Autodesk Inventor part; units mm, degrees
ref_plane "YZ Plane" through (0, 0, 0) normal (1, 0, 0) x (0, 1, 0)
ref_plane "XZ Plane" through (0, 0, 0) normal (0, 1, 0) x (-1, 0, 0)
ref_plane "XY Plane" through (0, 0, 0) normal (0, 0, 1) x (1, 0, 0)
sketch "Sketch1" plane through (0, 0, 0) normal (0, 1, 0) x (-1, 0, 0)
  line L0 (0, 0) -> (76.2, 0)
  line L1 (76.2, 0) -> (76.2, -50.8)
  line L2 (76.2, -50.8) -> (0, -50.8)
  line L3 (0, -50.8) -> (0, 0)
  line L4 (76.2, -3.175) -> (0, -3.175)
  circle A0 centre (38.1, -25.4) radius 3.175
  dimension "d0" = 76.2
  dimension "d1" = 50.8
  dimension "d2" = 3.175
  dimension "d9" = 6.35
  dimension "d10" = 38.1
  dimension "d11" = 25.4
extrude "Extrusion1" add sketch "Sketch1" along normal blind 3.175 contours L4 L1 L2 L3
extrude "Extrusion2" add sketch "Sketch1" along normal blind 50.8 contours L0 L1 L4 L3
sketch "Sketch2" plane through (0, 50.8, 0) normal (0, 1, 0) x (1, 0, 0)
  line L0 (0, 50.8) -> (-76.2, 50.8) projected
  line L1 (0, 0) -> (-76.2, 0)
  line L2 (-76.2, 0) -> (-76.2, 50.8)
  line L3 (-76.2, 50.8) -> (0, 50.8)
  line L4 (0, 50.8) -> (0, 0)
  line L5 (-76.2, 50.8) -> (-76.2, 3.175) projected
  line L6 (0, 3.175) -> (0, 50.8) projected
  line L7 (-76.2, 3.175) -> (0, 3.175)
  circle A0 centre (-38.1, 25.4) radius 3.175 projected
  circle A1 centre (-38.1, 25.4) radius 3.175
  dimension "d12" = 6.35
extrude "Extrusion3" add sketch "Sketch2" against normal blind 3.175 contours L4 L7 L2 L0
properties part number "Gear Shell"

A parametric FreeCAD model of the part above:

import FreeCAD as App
import Part
import Sketcher
from FreeCAD import Vector
Q = App.Units.Quantity

doc = App.newDocument("Part")
body = doc.addObject("PartDesign::Body", "Body")

sketch1 = body.newObject("Sketcher::SketchObject", "Sketch")
sketch1.AttachmentSupport = (doc.getObject("XZ_Plane"), [""])
sketch1.MapMode = "FlatFace"
sketch1.addGeometry([
    Part.LineSegment(Vector(-76.2, -3.175, 0), Vector(0, -3.175, 0)),
    Part.LineSegment(Vector(0, -3.175, 0), Vector(0, -50.8, 0)),
    Part.LineSegment(Vector(0, -50.8, 0), Vector(-76.2, -50.8, 0)),
    Part.LineSegment(Vector(-76.2, -50.8, 0), Vector(-76.2, -3.175, 0)),
    Part.Circle(Vector(-38.1, -25.4, 0), Vector(0, 0, 1), 3.175),
], False)
sketch1.addConstraint([
    Sketcher.Constraint("Coincident", 0, 2, 1, 1),
    Sketcher.Constraint("Coincident", 1, 2, 2, 1),
    Sketcher.Constraint("Coincident", 2, 2, 3, 1),
    Sketcher.Constraint("Coincident", 3, 2, 0, 1),
    Sketcher.Constraint("Horizontal", 0),
    Sketcher.Constraint("Vertical", 1),
    Sketcher.Constraint("Horizontal", 2),
    Sketcher.Constraint("Vertical", 3),
    Sketcher.Constraint("PointOnObject", 0, 2, -2),
    Sketcher.Constraint("Diameter", 4, Q("0.25 in")),
    Sketcher.Constraint("DistanceX", 0, 1, 0, 2, Q("3 in")),
    Sketcher.Constraint("DistanceY", 4, 3, -1, 1, Q("1 in")),
    Sketcher.Constraint("DistanceY", 1, 2, -1, 1, Q("2 in")),
    Sketcher.Constraint("DistanceX", 4, 3, -1, 1, Q("1.5 in")),
    Sketcher.Constraint("DistanceY", 0, 2, -1, 1, Q("0.125 in")),
])
pad1 = body.newObject("PartDesign::Pad", "Pad")
pad1.Profile = sketch1
pad1.Length = Q("0.125 in")
pad1.Reversed = True

sketch2 = body.newObject("Sketcher::SketchObject", "Sketch001")
sketch2.AttachmentSupport = (doc.getObject("XZ_Plane"), [""])
sketch2.MapMode = "FlatFace"
sketch2.addGeometry([
    Part.LineSegment(Vector(-76.2, 0, 0), Vector(0, 0, 0)),
    Part.LineSegment(Vector(0, 0, 0), Vector(0, -3.175, 0)),
    Part.LineSegment(Vector(0, -3.175, 0), Vector(-76.2, -3.175, 0)),
    Part.LineSegment(Vector(-76.2, -3.175, 0), Vector(-76.2, 0, 0)),
], False)
sketch2.addConstraint([
    Sketcher.Constraint("Coincident", 0, 2, 1, 1),
    Sketcher.Constraint("Coincident", 1, 2, 2, 1),
    Sketcher.Constraint("Coincident", 2, 2, 3, 1),
    Sketcher.Constraint("Coincident", 3, 2, 0, 1),
    Sketcher.Constraint("Horizontal", 0),
    Sketcher.Constraint("Vertical", 1),
    Sketcher.Constraint("Horizontal", 2),
    Sketcher.Constraint("Vertical", 3),
    Sketcher.Constraint("Coincident", 0, 2, -1, 1),
    Sketcher.Constraint("DistanceX", 0, 1, 0, 2, Q("3 in")),
    Sketcher.Constraint("DistanceY", 1, 2, 1, 1, Q("0.125 in")),
])
pad2 = body.newObject("PartDesign::Pad", "Pad001")
pad2.Profile = sketch2
pad2.Length = Q("2 in")
pad2.Reversed = True

sketch3 = body.newObject("Sketcher::SketchObject", "Sketch002")
sketch3.AttachmentSupport = (doc.getObject("XZ_Plane"), [""])
sketch3.MapMode = "FlatFace"
sketch3.AttachmentOffset = App.Placement(Vector(0, 0, -2 * 25.4), App.Rotation())
sketch3.addGeometry([
    Part.LineSegment(Vector(0, -3.175, 0), Vector(0, -50.8, 0)),
    Part.LineSegment(Vector(0, -50.8, 0), Vector(-76.2, -50.8, 0)),
    Part.LineSegment(Vector(-76.2, -50.8, 0), Vector(-76.2, -3.175, 0)),
    Part.LineSegment(Vector(-76.2, -3.175, 0), Vector(0, -3.175, 0)),
    Part.Circle(Vector(-38.1, -25.4, 0), Vector(0, 0, 1), 3.175),
], False)
sketch3.addConstraint([
    Sketcher.Constraint("Coincident", 0, 2, 1, 1),
    Sketcher.Constraint("Coincident", 1, 2, 2, 1),
    Sketcher.Constraint("Coincident", 2, 2, 3, 1),
    Sketcher.Constraint("Coincident", 3, 2, 0, 1),
    Sketcher.Constraint("Vertical", 0),
    Sketcher.Constraint("Horizontal", 1),
    Sketcher.Constraint("Vertical", 2),
    Sketcher.Constraint("Horizontal", 3),
    Sketcher.Constraint("PointOnObject", 0, 2, -2),
    Sketcher.Constraint("Diameter", 4, Q("0.25 in")),
    Sketcher.Constraint("DistanceX", 1, 2, 1, 1, Q("3 in")),
    Sketcher.Constraint("DistanceY", 4, 3, -1, 1, Q("1 in")),
    Sketcher.Constraint("DistanceY", 0, 2, -1, 1, Q("2 in")),
    Sketcher.Constraint("DistanceX", 4, 3, -1, 1, Q("1.5 in")),
    Sketcher.Constraint("DistanceY", 0, 2, 0, 1, Q("1.875 in")),
])
pad3 = body.newObject("PartDesign::Pad", "Pad002")
pad3.Profile = sketch3
pad3.Length = Q("0.125 in")

doc.recompute()
